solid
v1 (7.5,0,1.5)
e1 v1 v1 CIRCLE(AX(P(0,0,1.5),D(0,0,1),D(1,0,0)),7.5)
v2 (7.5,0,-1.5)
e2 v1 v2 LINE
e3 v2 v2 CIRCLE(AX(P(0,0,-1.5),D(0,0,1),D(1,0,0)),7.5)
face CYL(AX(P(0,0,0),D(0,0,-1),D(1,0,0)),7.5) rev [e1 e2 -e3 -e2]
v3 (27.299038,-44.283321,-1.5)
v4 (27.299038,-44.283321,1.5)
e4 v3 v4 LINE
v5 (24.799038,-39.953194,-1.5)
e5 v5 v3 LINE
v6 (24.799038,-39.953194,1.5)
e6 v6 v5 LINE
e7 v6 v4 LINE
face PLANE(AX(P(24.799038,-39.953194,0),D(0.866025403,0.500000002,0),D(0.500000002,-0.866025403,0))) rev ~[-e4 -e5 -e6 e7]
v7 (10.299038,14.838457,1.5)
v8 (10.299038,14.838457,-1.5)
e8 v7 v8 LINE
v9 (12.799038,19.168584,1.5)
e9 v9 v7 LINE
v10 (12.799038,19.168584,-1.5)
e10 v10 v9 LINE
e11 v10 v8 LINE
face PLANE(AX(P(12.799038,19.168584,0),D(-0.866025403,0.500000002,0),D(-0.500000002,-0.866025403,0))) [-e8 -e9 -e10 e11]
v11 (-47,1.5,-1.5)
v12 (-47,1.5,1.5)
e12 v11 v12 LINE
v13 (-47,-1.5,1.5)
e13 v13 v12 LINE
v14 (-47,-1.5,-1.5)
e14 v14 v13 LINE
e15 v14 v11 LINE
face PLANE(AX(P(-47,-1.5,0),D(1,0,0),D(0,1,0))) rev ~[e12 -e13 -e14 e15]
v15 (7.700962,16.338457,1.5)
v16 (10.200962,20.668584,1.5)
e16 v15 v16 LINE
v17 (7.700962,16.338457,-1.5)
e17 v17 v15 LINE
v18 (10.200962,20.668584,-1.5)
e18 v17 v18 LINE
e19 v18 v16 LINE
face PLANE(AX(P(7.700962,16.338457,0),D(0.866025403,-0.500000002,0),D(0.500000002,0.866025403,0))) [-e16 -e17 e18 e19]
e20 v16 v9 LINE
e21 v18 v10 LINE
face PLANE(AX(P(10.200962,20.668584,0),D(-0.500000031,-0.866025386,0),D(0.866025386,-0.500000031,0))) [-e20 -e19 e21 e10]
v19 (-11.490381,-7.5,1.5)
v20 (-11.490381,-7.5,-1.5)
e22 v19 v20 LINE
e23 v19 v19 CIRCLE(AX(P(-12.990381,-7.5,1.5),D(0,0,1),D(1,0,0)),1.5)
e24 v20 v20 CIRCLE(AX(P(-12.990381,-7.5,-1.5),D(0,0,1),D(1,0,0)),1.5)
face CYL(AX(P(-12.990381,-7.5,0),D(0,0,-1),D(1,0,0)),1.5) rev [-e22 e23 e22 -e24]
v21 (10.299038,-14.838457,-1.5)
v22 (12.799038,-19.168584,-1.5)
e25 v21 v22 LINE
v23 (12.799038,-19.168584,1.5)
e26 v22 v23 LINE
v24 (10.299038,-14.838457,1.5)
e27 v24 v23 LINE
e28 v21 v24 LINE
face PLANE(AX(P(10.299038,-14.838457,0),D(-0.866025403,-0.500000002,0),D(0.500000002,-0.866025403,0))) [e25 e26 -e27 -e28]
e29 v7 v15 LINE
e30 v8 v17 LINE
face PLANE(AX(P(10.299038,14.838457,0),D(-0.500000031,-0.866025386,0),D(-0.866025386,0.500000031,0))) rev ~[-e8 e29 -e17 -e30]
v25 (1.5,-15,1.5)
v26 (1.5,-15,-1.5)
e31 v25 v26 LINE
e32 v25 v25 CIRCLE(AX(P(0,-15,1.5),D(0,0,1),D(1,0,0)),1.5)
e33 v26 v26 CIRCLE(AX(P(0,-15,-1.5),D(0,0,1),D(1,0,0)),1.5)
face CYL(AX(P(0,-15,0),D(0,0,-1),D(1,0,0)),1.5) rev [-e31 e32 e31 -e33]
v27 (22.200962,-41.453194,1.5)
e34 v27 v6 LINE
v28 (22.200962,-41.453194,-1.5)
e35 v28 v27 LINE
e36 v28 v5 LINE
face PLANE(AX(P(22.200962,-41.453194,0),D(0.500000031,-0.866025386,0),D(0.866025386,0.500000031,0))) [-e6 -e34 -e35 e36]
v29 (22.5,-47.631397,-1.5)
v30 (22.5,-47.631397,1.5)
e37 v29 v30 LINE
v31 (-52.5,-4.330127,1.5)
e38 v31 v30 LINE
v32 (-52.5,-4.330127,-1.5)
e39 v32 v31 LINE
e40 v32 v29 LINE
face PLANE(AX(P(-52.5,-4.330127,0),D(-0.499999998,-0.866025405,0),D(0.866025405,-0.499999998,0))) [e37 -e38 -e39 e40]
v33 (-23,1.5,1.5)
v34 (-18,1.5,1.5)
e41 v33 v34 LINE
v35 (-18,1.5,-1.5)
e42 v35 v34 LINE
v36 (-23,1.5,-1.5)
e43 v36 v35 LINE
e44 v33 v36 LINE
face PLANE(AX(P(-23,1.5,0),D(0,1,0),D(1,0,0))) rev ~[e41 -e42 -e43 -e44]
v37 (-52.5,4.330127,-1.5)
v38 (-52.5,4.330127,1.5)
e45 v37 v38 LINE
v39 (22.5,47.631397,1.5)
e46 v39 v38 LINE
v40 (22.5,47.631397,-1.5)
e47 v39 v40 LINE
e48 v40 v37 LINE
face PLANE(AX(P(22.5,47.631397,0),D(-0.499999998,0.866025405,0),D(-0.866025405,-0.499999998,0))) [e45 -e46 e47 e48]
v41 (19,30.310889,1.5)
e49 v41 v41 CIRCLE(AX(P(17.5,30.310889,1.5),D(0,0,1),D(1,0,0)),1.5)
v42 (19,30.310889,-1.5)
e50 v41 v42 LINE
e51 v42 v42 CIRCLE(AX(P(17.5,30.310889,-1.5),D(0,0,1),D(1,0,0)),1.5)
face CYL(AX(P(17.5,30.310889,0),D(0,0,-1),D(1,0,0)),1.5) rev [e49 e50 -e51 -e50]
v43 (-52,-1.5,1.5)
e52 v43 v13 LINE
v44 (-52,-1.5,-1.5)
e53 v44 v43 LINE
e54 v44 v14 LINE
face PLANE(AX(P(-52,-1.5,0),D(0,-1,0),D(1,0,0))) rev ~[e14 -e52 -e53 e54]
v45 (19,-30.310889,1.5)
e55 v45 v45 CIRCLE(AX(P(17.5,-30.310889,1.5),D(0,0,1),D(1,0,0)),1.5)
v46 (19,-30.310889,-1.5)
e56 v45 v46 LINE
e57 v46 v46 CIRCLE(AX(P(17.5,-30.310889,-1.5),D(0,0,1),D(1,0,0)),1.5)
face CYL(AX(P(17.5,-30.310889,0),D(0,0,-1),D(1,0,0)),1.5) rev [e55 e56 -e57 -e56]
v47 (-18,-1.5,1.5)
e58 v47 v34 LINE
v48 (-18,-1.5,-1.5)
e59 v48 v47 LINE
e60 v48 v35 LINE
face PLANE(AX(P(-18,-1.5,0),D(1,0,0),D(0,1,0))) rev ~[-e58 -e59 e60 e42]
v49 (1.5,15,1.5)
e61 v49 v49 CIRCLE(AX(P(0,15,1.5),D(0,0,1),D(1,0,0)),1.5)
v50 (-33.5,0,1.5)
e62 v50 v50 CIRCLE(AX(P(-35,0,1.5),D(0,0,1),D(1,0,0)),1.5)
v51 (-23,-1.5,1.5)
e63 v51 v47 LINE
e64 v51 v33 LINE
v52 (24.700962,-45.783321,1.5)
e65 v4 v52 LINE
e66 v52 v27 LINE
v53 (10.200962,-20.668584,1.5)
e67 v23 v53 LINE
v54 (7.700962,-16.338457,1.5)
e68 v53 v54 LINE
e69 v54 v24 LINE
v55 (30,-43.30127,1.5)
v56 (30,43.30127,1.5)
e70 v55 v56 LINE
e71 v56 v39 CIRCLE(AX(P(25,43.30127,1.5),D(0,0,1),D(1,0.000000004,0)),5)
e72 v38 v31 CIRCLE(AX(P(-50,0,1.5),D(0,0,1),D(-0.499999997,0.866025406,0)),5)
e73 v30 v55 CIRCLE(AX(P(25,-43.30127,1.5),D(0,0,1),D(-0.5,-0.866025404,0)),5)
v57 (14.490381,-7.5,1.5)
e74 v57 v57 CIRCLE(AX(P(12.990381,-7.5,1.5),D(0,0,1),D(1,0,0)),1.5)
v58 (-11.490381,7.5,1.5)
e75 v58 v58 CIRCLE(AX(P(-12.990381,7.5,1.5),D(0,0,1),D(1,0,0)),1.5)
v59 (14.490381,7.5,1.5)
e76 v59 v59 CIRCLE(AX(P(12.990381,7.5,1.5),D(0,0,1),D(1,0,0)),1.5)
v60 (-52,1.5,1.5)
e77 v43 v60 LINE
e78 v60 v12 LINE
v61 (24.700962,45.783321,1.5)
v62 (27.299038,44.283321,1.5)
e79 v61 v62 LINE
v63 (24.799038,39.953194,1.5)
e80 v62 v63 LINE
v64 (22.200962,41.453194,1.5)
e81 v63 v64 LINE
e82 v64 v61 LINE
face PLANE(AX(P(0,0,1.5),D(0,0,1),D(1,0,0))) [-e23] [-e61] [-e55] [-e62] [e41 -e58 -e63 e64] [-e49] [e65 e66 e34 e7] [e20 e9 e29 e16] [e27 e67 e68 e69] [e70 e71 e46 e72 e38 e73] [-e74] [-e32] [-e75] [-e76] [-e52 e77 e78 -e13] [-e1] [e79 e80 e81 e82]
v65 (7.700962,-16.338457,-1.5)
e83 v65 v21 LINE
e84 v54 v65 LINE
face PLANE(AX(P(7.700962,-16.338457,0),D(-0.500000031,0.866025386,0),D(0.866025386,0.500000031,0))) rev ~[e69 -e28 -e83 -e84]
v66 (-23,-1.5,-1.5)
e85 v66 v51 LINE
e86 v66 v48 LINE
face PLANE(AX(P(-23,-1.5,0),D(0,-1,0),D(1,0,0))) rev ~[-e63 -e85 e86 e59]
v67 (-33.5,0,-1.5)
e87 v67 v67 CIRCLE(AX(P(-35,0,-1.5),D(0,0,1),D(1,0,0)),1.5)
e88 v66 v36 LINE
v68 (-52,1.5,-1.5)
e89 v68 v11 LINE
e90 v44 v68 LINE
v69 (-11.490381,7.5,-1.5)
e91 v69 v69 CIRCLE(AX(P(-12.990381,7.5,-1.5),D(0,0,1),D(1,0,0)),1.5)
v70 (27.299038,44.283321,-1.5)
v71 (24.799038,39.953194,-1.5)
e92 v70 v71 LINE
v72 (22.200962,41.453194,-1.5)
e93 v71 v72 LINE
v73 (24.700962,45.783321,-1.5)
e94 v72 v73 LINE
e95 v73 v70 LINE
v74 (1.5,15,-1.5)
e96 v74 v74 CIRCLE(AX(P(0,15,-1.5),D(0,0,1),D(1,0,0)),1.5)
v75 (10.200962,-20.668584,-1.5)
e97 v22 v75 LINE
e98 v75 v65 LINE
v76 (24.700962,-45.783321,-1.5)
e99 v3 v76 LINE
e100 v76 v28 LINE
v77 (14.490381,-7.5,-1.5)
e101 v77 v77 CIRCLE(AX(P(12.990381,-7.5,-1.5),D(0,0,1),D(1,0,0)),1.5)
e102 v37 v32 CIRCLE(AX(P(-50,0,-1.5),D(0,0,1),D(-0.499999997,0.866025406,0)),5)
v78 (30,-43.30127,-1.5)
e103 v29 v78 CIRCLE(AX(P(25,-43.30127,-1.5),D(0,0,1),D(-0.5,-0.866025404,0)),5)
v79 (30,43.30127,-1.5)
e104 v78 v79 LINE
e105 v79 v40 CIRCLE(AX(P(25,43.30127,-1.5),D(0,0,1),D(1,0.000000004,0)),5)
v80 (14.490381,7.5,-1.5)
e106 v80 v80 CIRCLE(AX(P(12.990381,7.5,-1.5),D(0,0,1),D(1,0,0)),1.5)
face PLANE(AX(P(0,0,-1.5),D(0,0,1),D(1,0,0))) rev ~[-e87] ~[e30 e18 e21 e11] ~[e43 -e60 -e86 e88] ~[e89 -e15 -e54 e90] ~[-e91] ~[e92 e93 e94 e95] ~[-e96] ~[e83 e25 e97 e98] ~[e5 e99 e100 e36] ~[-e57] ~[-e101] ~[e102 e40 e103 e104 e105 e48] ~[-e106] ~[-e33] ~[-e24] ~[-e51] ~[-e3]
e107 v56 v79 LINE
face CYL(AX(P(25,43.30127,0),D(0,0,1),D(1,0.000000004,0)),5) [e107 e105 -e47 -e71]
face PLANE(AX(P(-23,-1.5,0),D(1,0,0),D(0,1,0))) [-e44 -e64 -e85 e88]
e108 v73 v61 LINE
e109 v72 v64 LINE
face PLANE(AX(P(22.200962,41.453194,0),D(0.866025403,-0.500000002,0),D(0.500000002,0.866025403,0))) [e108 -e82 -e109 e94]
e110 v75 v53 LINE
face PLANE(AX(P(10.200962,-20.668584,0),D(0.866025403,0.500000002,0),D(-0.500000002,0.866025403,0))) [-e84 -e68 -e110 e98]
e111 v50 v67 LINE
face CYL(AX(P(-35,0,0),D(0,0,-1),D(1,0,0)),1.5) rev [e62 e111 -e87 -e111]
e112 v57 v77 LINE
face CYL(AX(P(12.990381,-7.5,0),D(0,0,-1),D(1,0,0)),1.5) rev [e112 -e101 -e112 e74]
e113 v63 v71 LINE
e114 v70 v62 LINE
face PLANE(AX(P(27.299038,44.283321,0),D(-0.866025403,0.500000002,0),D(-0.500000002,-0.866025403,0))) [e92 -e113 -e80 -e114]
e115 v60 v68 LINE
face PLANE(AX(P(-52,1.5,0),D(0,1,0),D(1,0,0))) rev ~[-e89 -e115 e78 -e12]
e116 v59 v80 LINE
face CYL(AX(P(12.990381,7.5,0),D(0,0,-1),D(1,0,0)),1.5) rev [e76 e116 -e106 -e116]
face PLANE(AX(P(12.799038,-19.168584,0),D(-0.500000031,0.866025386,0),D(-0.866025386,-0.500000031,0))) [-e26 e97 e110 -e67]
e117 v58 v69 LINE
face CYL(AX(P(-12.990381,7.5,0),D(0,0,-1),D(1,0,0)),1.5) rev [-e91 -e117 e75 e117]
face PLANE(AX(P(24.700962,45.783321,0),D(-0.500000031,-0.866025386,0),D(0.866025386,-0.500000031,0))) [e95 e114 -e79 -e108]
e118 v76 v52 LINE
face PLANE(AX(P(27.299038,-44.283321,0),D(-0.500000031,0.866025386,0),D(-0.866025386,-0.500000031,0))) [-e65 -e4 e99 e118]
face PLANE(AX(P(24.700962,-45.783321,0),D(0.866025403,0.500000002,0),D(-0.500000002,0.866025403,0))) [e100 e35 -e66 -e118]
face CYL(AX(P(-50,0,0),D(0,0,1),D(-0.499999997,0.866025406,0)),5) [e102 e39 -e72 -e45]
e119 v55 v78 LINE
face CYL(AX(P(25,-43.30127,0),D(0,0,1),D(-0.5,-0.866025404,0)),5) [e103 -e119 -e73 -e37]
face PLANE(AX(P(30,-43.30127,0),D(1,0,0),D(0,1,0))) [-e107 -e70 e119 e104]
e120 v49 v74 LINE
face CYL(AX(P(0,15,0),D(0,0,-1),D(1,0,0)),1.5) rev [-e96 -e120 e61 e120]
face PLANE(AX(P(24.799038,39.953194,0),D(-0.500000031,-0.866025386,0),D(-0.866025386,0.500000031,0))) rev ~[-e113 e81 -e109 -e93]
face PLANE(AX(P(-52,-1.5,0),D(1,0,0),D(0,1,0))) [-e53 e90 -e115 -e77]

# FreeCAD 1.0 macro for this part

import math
import FreeCAD as App
import Part
import Sketcher
Q = App.Units.Quantity

doc = App.newDocument("Part")
body = doc.addObject("PartDesign::Body", "Body")

sketch1 = body.newObject("Sketcher::SketchObject", "Sketch")
sketch1.AttachmentSupport = (doc.getObject("XY_Plane"), [""])
sketch1.MapMode = "FlatFace"
sketch1.addGeometry([
    Part.LineSegment(App.Vector(22.5, 47.631397, 0), App.Vector(-52.5, 4.330127, 0)),
    Part.ArcOfCircle(Part.Circle(App.Vector(-50, 0, 0), App.Vector(0, 0, 1), 5), math.radians(120), math.radians(240)),
    Part.LineSegment(App.Vector(-52.5, -4.330127, 0), App.Vector(22.5, -47.631397, 0)),
    Part.ArcOfCircle(Part.Circle(App.Vector(25, -43.30127, 0), App.Vector(0, 0, 1), 5), math.radians(-120), math.radians(0)),
    Part.LineSegment(App.Vector(30, -43.30127, 0), App.Vector(30, 43.30127, 0)),
    Part.ArcOfCircle(Part.Circle(App.Vector(25, 43.30127, 0), App.Vector(0, 0, 1), 5), math.radians(0), math.radians(120)),
    Part.Circle(App.Vector(-12.990381, -7.5, 0), App.Vector(0, 0, 1), 1.5),
    Part.LineSegment(App.Vector(24.700962, -45.783321, 0), App.Vector(22.200962, -41.453194, 0)),
    Part.LineSegment(App.Vector(22.200962, -41.453194, 0), App.Vector(24.799038, -39.953194, 0)),
    Part.LineSegment(App.Vector(24.799038, -39.953194, 0), App.Vector(27.299038, -44.283321, 0)),
    Part.LineSegment(App.Vector(27.299038, -44.283321, 0), App.Vector(24.700962, -45.783321, 0)),
    Part.Circle(App.Vector(17.5, -30.310889, 0), App.Vector(0, 0, 1), 1.5),
    Part.Circle(App.Vector(0, -15, 0), App.Vector(0, 0, 1), 1.5),
    Part.LineSegment(App.Vector(12.799038, -19.168584, 0), App.Vector(10.200962, -20.668584, 0)),
    Part.LineSegment(App.Vector(10.200962, -20.668584, 0), App.Vector(7.700962, -16.338457, 0)),
    Part.LineSegment(App.Vector(7.700962, -16.338457, 0), App.Vector(10.299038, -14.838457, 0)),
    Part.LineSegment(App.Vector(10.299038, -14.838457, 0), App.Vector(12.799038, -19.168584, 0)),
    Part.Circle(App.Vector(12.990381, -7.5, 0), App.Vector(0, 0, 1), 1.5),
    Part.LineSegment(App.Vector(-47, -1.5, 0), App.Vector(-52, -1.5, 0)),
    Part.LineSegment(App.Vector(-52, -1.5, 0), App.Vector(-52, 1.5, 0)),
    Part.LineSegment(App.Vector(-52, 1.5, 0), App.Vector(-47, 1.5, 0)),
    Part.LineSegment(App.Vector(-47, 1.5, 0), App.Vector(-47, -1.5, 0)),
    Part.Circle(App.Vector(-35, 0, 0), App.Vector(0, 0, 1), 1.5),
    Part.LineSegment(App.Vector(-18, -1.5, 0), App.Vector(-23, -1.5, 0)),
    Part.LineSegment(App.Vector(-23, -1.5, 0), App.Vector(-23, 1.5, 0)),
    Part.LineSegment(App.Vector(-23, 1.5, 0), App.Vector(-18, 1.5, 0)),
    Part.LineSegment(App.Vector(-18, 1.5, 0), App.Vector(-18, -1.5, 0)),
    Part.Circle(App.Vector(-12.990381, 7.5, 0), App.Vector(0, 0, 1), 1.5),
    Part.Circle(App.Vector(0, 0, 0), App.Vector(0, 0, 1), 7.5),
    Part.Circle(App.Vector(0, 15, 0), App.Vector(0, 0, 1), 1.5),
    Part.Circle(App.Vector(12.990381, 7.5, 0), App.Vector(0, 0, 1), 1.5),
    Part.LineSegment(App.Vector(10.200962, 20.668584, 0), App.Vector(12.799038, 19.168584, 0)),
    Part.LineSegment(App.Vector(12.799038, 19.168584, 0), App.Vector(10.299038, 14.838457, 0)),
    Part.LineSegment(App.Vector(10.299038, 14.838457, 0), App.Vector(7.700962, 16.338457, 0)),
    Part.LineSegment(App.Vector(7.700962, 16.338457, 0), App.Vector(10.200962, 20.668584, 0)),
    Part.Circle(App.Vector(17.5, 30.310889, 0), App.Vector(0, 0, 1), 1.5),
    Part.LineSegment(App.Vector(27.299038, 44.283321, 0), App.Vector(24.799038, 39.953194, 0)),
    Part.LineSegment(App.Vector(24.799038, 39.953194, 0), App.Vector(22.200962, 41.453194, 0)),
    Part.LineSegment(App.Vector(22.200962, 41.453194, 0), App.Vector(24.700962, 45.783321, 0)),
    Part.LineSegment(App.Vector(24.700962, 45.783321, 0), App.Vector(27.299038, 44.283321, 0)),
], False)
sketch1.addConstraint([
    Sketcher.Constraint("Tangent", 0, 2, 1, 1),
    Sketcher.Constraint("Tangent", 1, 2, 2, 1),
    Sketcher.Constraint("Tangent", 2, 2, 3, 1),
    Sketcher.Constraint("Tangent", 3, 2, 4, 1),
    Sketcher.Constraint("Tangent", 4, 2, 5, 1),
    Sketcher.Constraint("Tangent", 5, 2, 0, 1),
    Sketcher.Constraint("Coincident", 7, 2, 8, 1),
    Sketcher.Constraint("Coincident", 8, 2, 9, 1),
    Sketcher.Constraint("Coincident", 9, 2, 10, 1),
    Sketcher.Constraint("Coincident", 10, 2, 7, 1),
    Sketcher.Constraint("Coincident", 13, 2, 14, 1),
    Sketcher.Constraint("Coincident", 14, 2, 15, 1),
    Sketcher.Constraint("Coincident", 15, 2, 16, 1),
    Sketcher.Constraint("Coincident", 16, 2, 13, 1),
    Sketcher.Constraint("Coincident", 18, 2, 19, 1),
    Sketcher.Constraint("Coincident", 19, 2, 20, 1),
    Sketcher.Constraint("Coincident", 20, 2, 21, 1),
    Sketcher.Constraint("Coincident", 21, 2, 18, 1),
    Sketcher.Constraint("Coincident", 23, 2, 24, 1),
    Sketcher.Constraint("Coincident", 24, 2, 25, 1),
    Sketcher.Constraint("Coincident", 25, 2, 26, 1),
    Sketcher.Constraint("Coincident", 26, 2, 23, 1),
    Sketcher.Constraint("Coincident", 31, 2, 32, 1),
    Sketcher.Constraint("Coincident", 32, 2, 33, 1),
    Sketcher.Constraint("Coincident", 33, 2, 34, 1),
    Sketcher.Constraint("Coincident", 34, 2, 31, 1),
    Sketcher.Constraint("Coincident", 36, 2, 37, 1),
    Sketcher.Constraint("Coincident", 37, 2, 38, 1),
    Sketcher.Constraint("Coincident", 38, 2, 39, 1),
    Sketcher.Constraint("Coincident", 39, 2, 36, 1),
    Sketcher.Constraint("Vertical", 4),
    Sketcher.Constraint("Horizontal", 18),
    Sketcher.Constraint("Vertical", 19),
    Sketcher.Constraint("Horizontal", 20),
    Sketcher.Constraint("Vertical", 21),
    Sketcher.Constraint("Horizontal", 23),
    Sketcher.Constraint("Vertical", 24),
    Sketcher.Constraint("Horizontal", 25),
    Sketcher.Constraint("Vertical", 26),
    Sketcher.Constraint("Coincident", 28, 3, -1, 1),
    Sketcher.Constraint("Equal", 1, 3),
    Sketcher.Constraint("Equal", 3, 5),
    Sketcher.Constraint("Equal", 6, 11),
    Sketcher.Constraint("Equal", 11, 12),
    Sketcher.Constraint("Equal", 12, 17),
    Sketcher.Constraint("Equal", 17, 22),
    Sketcher.Constraint("Equal", 22, 27),
    Sketcher.Constraint("Equal", 27, 29),
    Sketcher.Constraint("Equal", 29, 30),
    Sketcher.Constraint("Equal", 30, 35),
    Sketcher.Constraint("Symmetric", 17, 3, 27, 3, -1, 1),
    Sketcher.Constraint("Symmetric", 12, 3, 29, 3, -1, 1),
    Sketcher.Constraint("Symmetric", 6, 3, 30, 3, -1, 1),
    Sketcher.Constraint("Symmetric", 6, 3, 17, 3, -2),
    Sketcher.Constraint("Symmetric", 11, 3, 35, 3, -1),
    Sketcher.Constraint("Symmetric", 0, 2, 1, 2, -1),
    Sketcher.Constraint("Symmetric", 16, 2, 31, 2, -1),
    Sketcher.Constraint("Symmetric", 15, 2, 32, 2, -1),
    Sketcher.Constraint("Symmetric", 14, 2, 33, 2, -1),
    Sketcher.Constraint("Symmetric", 13, 2, 34, 2, -1),
    Sketcher.Constraint("Symmetric", 8, 2, 36, 2, -1),
    Sketcher.Constraint("Symmetric", 7, 2, 37, 2, -1),
    Sketcher.Constraint("Symmetric", 10, 2, 38, 2, -1),
    Sketcher.Constraint("Symmetric", 9, 2, 39, 2, -1),
    Sketcher.Constraint("PointOnObject", 12, 3, -2),
    Sketcher.Constraint("PointOnObject", 22, 3, -1),
    Sketcher.Constraint("Perpendicular", 0, 7),
    Sketcher.Constraint("Perpendicular", 7, 8),
    Sketcher.Constraint("Perpendicular", 8, 9),
    Sketcher.Constraint("Perpendicular", 9, 10),
    Sketcher.Constraint("Parallel", 10, 13),
    Sketcher.Constraint("Perpendicular", 13, 14),
    Sketcher.Constraint("Perpendicular", 14, 15),
    Sketcher.Constraint("Perpendicular", 15, 16),
    Sketcher.Constraint("Horizontal", 21, 2, 23, 2),
    Sketcher.Constraint("Horizontal", 20, 2, 24, 2),
    Sketcher.Constraint("Equal", 20, 23),
    Sketcher.Constraint("Equal", 10, 13),
    Sketcher.Constraint("Equal", 9, 14),
    Sketcher.Constraint("Diameter", 6, 3.0),
    Sketcher.Constraint("Diameter", 28, 15.0),
    Sketcher.Constraint("Radius", 1, 5.0),
    Sketcher.Constraint("DistanceX", 18, 2, 18, 1, 5.0),
    Sketcher.Constraint("DistanceY", 19, 1, 19, 2, 3.0),
    Sketcher.Constraint("Angle", 0, Q("-150 deg")),
    Sketcher.Constraint("Distance", 7, 5.0),
    Sketcher.Constraint("Distance", 8, 3.0),
    Sketcher.Constraint("DistanceX", 1, 3, -1, 1, 50.0),
    Sketcher.Constraint("DistanceX", -1, 1, 3, 3, 25.0),
    Sketcher.Constraint("DistanceY", 12, 3, -1, 1, 15.0),
    Sketcher.Constraint("DistanceX", 22, 3, -1, 1, 35.0),
    Sketcher.Constraint("DistanceX", 18, 2, -1, 1, 52.0),
    Sketcher.Constraint("DistanceX", 23, 2, -1, 1, 23.0),
    Sketcher.Constraint("DistanceY", 6, 3, 27, 3, 15.0),
    Sketcher.Constraint("DistanceX", 11, 3, 2, 2, 5.0),
    Sketcher.Constraint("DistanceX", 13, 2, 7, 2, 12.0),
    Sketcher.Constraint("DistanceY", 6, 3, 18, 2, 6.0),
    Sketcher.Constraint("DistanceX", 6, 3, -1, 1, 12.990381),
    Sketcher.Constraint("DistanceY", 11, 3, -1, 1, 30.310889),
    Sketcher.Constraint("DistanceY", 9, 2, -1, 1, 44.283321),
    Sketcher.Constraint("DistanceX", -1, 1, 14, 2, 7.700962),
    Sketcher.Constraint("DistanceY", 7, 2, 13, 2, 20.78461),
])
pad1 = body.newObject("PartDesign::Pad", "Pad")
pad1.Profile = sketch1
pad1.Length = 3
pad1.Midplane = True

doc.recompute()
